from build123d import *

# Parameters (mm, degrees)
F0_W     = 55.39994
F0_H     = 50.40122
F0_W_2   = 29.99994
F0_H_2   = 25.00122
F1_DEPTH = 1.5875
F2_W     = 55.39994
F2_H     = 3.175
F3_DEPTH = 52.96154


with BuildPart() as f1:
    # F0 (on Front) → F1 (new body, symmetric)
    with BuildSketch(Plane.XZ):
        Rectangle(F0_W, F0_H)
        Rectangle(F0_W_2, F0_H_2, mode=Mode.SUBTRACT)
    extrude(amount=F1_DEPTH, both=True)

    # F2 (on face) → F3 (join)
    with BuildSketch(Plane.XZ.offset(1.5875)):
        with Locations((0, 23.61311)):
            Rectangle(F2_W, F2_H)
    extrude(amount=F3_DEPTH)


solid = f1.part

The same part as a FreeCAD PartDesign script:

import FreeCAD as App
import Part
import Sketcher

V = App.Vector
Q = App.Units.Quantity


def add_polygon(sketch, points):
    """Adds a closed chain of lines whose ends are joined by coincident constraints."""
    first, n = sketch.GeometryCount, len(points)
    for a, b in zip(points, points[1:] + points[:1]):
        sketch.addGeometry(Part.LineSegment(App.Vector(*a, 0), App.Vector(*b, 0)), False)
    for i in range(n):
        sketch.addConstraint(Sketcher.Constraint("Coincident", first + i, 2, first + (i + 1) % n, 1))

doc = App.newDocument("Part")
body = doc.addObject("PartDesign::Body", "Body")

# Sketch on XZ plane
sketch1 = body.newObject("Sketcher::SketchObject", "Sketch")
sketch1.AttachmentSupport = (doc.getObject("XZ_Plane"), [""])
sketch1.MapMode = "FlatFace"
add_polygon(sketch1, [(-28, 25), (-28, -25), (28, -25), (28, 25)])  # lines 0-3
add_polygon(sketch1, [(15, -13), (-15, -13), (-15, 13), (15, 13)])  # lines 4-7
sketch1.addConstraint([
    Sketcher.Constraint("Vertical", 0),
    Sketcher.Constraint("Horizontal", 1),
    Sketcher.Constraint("Vertical", 2),
    Sketcher.Constraint("Horizontal", 3),
    Sketcher.Constraint("Horizontal", 4),
    Sketcher.Constraint("Vertical", 5),
    Sketcher.Constraint("Horizontal", 6),
    Sketcher.Constraint("Vertical", 7),
    Sketcher.Constraint("Symmetric", 0, 2, 2, 2, -1, 1),
    Sketcher.Constraint("Symmetric", 4, 2, 6, 2, -1, 1),
    Sketcher.Constraint("DistanceX", 0, 2, 4, 2, Q("0.5 in")),
    Sketcher.Constraint("DistanceY", 0, 2, 4, 2, Q("0.5 in")),
    Sketcher.Constraint("DistanceX", 1, 1, 1, 2, Q("2.1811 in")),
    Sketcher.Constraint("DistanceY", 0, 2, 0, 1, Q("1.9843 in")),
])
pad1 = body.newObject("PartDesign::Pad", "Pad")
pad1.Profile = sketch1
pad1.Length = Q("0.125 in")
pad1.Midplane = True

# Sketch on XZ plane
sketch2 = body.newObject("Sketcher::SketchObject", "Sketch001")
sketch2.AttachmentSupport = (doc.getObject("XZ_Plane"), [""])
sketch2.MapMode = "FlatFace"
sketch2.AttachmentOffset = App.Placement(V(0, 0, 0.0625 * 25.4), App.Rotation())
add_polygon(sketch2, [(-27.7, 25.2), (-27.7, 22), (27.7, 22), (27.7, 25.2)])  # lines 0-3
sketch2.addConstraint([
    Sketcher.Constraint("Vertical", 0),
    Sketcher.Constraint("Horizontal", 1),
    Sketcher.Constraint("Vertical", 2),
    Sketcher.Constraint("Horizontal", 3),
    Sketcher.Constraint("DistanceY", 0, 2, 0, 1, Q("0.125 in")),
    Sketcher.Constraint("DistanceX", 1, 1, 1, 2, Q("2.1811 in")),
    Sketcher.Constraint("DistanceX", 0, 2, -1, 1, 27.69997),
    Sketcher.Constraint("DistanceY", -1, 1, 0, 2, 22.02561),
])
pad2 = body.newObject("PartDesign::Pad", "Pad001")
pad2.Profile = sketch2
pad2.Length = Q("2.0851 in")

doc.recompute()
